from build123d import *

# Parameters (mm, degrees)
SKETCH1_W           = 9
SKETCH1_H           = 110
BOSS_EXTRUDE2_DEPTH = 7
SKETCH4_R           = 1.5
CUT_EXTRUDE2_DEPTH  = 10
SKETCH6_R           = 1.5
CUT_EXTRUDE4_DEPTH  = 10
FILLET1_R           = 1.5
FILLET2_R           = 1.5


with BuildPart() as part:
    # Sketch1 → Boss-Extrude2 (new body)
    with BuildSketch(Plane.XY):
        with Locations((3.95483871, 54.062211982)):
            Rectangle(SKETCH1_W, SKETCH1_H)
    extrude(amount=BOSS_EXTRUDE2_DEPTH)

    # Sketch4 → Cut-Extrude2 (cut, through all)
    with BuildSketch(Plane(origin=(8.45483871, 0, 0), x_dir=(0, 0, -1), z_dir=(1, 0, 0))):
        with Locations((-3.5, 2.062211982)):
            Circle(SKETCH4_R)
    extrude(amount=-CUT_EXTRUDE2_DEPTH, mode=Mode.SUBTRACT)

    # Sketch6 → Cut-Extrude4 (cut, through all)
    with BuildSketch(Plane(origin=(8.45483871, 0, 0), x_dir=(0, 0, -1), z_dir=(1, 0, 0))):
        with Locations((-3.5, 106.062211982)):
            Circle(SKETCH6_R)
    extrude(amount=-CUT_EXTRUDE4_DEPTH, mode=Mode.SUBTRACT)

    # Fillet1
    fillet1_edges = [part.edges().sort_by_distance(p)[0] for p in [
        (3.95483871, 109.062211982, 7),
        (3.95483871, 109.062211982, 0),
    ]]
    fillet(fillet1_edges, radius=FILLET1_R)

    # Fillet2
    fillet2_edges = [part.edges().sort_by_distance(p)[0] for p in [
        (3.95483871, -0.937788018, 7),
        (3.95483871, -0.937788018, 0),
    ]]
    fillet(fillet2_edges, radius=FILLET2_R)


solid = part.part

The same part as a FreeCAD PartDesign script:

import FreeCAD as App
import Part
import Sketcher

V = App.Vector


def edges_at(feature, points):
    """Names of the edges that pass closest to the given points."""
    edges = feature.Shape.Edges
    near = lambda p: min(range(len(edges)), key=lambda i: edges[i].distToShape(Part.Vertex(*p))[0])
    return sorted({f"Edge{near(p) + 1}" for p in points})


def add_polygon(sketch, points):
    """Adds a closed chain of lines whose ends are joined by coincident constraints."""
    first, n = sketch.GeometryCount, len(points)
    for a, b in zip(points, points[1:] + points[:1]):
        sketch.addGeometry(Part.LineSegment(App.Vector(*a, 0), App.Vector(*b, 0)), False)
    for i in range(n):
        sketch.addConstraint(Sketcher.Constraint("Coincident", first + i, 2, first + (i + 1) % n, 1))

doc = App.newDocument("Part")
body = doc.addObject("PartDesign::Body", "Body")

# Sketch on XY plane
sketch1 = doc.addObject("Sketcher::SketchObject", "Sketch")
body.addObject(sketch1)
sketch1.AttachmentSupport = (doc.XY_Plane, [""])
sketch1.MapMode = "FlatFace"
add_polygon(sketch1, [(-0.545161, 109.062212), (-0.545161, -0.937788), (8.454839, -0.937788), (8.454839, 109.062212)])  # lines 0-3
sketch1.addConstraint([
    Sketcher.Constraint("Vertical", 0),
    Sketcher.Constraint("Horizontal", 1),
    Sketcher.Constraint("Vertical", 2),
    Sketcher.Constraint("Horizontal", 3),
    Sketcher.Constraint("DistanceX", 1, 1, 1, 2, 9.0),
    Sketcher.Constraint("DistanceY", 0, 2, 0, 1, 110.0),
    Sketcher.Constraint("DistanceX", 0, 2, -1, 1, 0.545161),
    Sketcher.Constraint("DistanceY", 0, 2, -1, 1, 0.937788),
])
pad1 = doc.addObject("PartDesign::Pad", "Pad")
body.addObject(pad1)
pad1.Profile = sketch1
pad1.Length = 7

# Sketch on YZ plane
sketch2 = doc.addObject("Sketcher::SketchObject", "Sketch001")
body.addObject(sketch2)
sketch2.AttachmentSupport = (doc.YZ_Plane, [""])
sketch2.MapMode = "FlatFace"
sketch2.AttachmentOffset = App.Placement(V(0, 0, 8.454839), App.Rotation())
sketch2.addGeometry(Part.Circle(V(2.062212, 3.5, 0), V(0, 0, 1), 1.5), False)
sketch2.addConstraint([
    Sketcher.Constraint("Diameter", 0, 3.0),
    Sketcher.Constraint("DistanceY", -1, 1, 0, 3, 3.5),
    Sketcher.Constraint("DistanceX", -1, 1, 0, 3, 2.062212),
])
pocket1 = doc.addObject("PartDesign::Pocket", "Pocket")
body.addObject(pocket1)
pocket1.Profile = sketch2
pocket1.Type = "ThroughAll"

# Sketch on YZ plane
sketch3 = doc.addObject("Sketcher::SketchObject", "Sketch002")
body.addObject(sketch3)
sketch3.AttachmentSupport = (doc.YZ_Plane, [""])
sketch3.MapMode = "FlatFace"
sketch3.AttachmentOffset = App.Placement(V(0, 0, 8.454839), App.Rotation())
sketch3.addGeometry(Part.Circle(V(106.062212, 3.5, 0), V(0, 0, 1), 1.5), False)
sketch3.addConstraint([
    Sketcher.Constraint("Diameter", 0, 3.0),
    Sketcher.Constraint("DistanceY", -1, 1, 0, 3, 3.5),
    Sketcher.Constraint("DistanceX", -1, 1, 0, 3, 106.062212),
])
pocket2 = doc.addObject("PartDesign::Pocket", "Pocket001")
body.addObject(pocket2)
pocket2.Profile = sketch3
pocket2.Type = "ThroughAll"
doc.recompute()

fillet = doc.addObject("PartDesign::Fillet", "Fillet")
body.addObject(fillet)
fillet.Base = (pocket2, edges_at(pocket2, [(3.955, 109.062, 7), (3.955, 109.062, 0)]))
fillet.Radius = 1.5
doc.recompute()

fillet2 = doc.addObject("PartDesign::Fillet", "Fillet001")
body.addObject(fillet2)
fillet2.Base = (fillet, edges_at(fillet, [(3.955, -0.938, 7), (3.955, -0.938, 0)]))
fillet2.Radius = 1.5

doc.recompute()
